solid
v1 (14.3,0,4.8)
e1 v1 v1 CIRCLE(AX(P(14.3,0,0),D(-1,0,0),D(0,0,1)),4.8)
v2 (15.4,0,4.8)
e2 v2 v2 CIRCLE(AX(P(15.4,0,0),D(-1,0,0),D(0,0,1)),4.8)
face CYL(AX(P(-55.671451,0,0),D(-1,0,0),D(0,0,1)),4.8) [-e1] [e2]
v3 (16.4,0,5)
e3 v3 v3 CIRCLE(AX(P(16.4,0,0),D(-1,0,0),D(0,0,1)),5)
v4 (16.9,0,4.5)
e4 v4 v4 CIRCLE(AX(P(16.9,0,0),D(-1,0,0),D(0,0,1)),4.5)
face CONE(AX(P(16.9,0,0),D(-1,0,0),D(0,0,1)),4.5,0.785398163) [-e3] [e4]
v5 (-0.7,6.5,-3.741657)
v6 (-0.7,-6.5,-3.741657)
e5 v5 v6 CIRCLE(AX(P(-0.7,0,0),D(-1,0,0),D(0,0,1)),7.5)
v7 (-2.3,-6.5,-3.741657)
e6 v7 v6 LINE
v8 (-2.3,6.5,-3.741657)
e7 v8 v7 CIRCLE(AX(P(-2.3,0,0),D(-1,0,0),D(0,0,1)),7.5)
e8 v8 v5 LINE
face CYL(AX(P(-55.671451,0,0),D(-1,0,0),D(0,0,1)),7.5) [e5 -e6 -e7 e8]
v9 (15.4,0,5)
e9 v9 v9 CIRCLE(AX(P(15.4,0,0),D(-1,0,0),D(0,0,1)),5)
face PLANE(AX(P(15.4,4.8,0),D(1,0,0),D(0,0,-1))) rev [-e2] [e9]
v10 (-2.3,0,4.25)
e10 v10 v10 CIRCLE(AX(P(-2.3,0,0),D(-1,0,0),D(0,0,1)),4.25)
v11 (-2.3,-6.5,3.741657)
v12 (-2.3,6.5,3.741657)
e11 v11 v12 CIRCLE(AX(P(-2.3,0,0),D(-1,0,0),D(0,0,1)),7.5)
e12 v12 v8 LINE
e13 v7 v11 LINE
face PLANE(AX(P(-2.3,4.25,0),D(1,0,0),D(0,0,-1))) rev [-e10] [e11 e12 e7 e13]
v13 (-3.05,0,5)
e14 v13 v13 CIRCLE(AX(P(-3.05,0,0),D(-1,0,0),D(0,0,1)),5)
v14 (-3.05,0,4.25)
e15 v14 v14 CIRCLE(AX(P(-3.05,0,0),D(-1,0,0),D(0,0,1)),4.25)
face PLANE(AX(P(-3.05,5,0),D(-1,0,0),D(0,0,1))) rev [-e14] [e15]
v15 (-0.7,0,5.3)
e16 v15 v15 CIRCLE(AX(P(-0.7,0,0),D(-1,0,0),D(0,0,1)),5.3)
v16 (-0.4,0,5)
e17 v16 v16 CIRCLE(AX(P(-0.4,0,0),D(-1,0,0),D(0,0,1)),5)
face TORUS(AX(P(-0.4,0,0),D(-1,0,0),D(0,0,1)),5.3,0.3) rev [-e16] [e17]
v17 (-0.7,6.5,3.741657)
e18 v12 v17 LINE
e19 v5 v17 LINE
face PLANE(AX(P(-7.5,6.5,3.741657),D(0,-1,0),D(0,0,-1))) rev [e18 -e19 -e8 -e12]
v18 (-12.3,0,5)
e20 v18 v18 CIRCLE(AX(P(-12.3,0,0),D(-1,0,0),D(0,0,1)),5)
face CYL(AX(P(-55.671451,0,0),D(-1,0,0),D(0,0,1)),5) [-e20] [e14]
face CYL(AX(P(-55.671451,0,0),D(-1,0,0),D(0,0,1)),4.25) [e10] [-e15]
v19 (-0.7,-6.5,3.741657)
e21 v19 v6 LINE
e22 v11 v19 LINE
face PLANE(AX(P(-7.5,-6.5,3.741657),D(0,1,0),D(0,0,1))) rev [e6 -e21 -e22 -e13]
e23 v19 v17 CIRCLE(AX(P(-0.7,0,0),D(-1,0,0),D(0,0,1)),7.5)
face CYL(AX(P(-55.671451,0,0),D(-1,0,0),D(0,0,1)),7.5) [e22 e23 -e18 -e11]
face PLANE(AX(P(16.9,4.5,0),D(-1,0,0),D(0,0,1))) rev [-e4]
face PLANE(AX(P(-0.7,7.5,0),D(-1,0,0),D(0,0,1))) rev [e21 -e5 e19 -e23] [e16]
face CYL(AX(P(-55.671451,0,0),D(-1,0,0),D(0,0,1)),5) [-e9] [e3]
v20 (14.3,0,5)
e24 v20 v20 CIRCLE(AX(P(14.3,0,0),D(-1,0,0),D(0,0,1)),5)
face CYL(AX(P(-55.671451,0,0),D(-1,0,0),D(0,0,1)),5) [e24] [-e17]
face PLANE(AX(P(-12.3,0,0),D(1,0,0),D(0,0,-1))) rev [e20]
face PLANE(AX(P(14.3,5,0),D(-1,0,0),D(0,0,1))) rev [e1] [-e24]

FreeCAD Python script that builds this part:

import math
import FreeCAD as App
import Part
import Sketcher
from FreeCAD import Vector
Q = App.Units.Quantity

doc = App.newDocument("Part")
body = doc.addObject("PartDesign::Body", "Body")

# Sketch on XY plane
sketch1 = body.newObject("Sketcher::SketchObject", "Sketch")
sketch1.AttachmentSupport = (doc.getObject("XY_Plane"), [""])
sketch1.MapMode = "FlatFace"
sketch1.addGeometry([
    Part.LineSegment(Vector(15.4, 4.8, 0), Vector(14.3, 4.8, 0)),  # 0
    Part.LineSegment(Vector(14.3, 4.8, 0), Vector(14.3, 5, 0)),  # 1
    Part.LineSegment(Vector(14.3, 5, 0), Vector(-0.4, 5, 0)),  # 2
    Part.ArcOfCircle(Part.Circle(Vector(-0.4, 5.3, 0), Vector(0, 0, 1), 0.3), math.radians(-180), math.radians(-90)),  # 3
    Part.LineSegment(Vector(-0.7, 5.3, 0), Vector(-0.7, 7.5, 0)),  # 4
    Part.LineSegment(Vector(-0.7, 7.5, 0), Vector(-2.3, 7.5, 0)),  # 5
    Part.LineSegment(Vector(-2.3, 7.5, 0), Vector(-2.3, 4.25, 0)),  # 6
    Part.LineSegment(Vector(-2.3, 4.25, 0), Vector(-3.05, 4.25, 0)),  # 7
    Part.LineSegment(Vector(-3.05, 4.25, 0), Vector(-3.05, 5, 0)),  # 8
    Part.LineSegment(Vector(-3.05, 5, 0), Vector(-12.3, 5, 0)),  # 9
    Part.LineSegment(Vector(-12.3, 5, 0), Vector(-12.3, 0, 0)),  # 10
    Part.LineSegment(Vector(-12.3, 0, 0), Vector(16.9, 0, 0)),  # 11
    Part.LineSegment(Vector(16.9, 0, 0), Vector(16.9, 4.5, 0)),  # 12
    Part.LineSegment(Vector(16.9, 4.5, 0), Vector(16.4, 5, 0)),  # 13
    Part.LineSegment(Vector(16.4, 5, 0), Vector(15.4, 5, 0)),  # 14
    Part.LineSegment(Vector(15.4, 5, 0), Vector(15.4, 4.8, 0)),  # 15
], False)
sketch1.addConstraint([
    Sketcher.Constraint("Coincident", 0, 2, 1, 1),
    Sketcher.Constraint("Coincident", 1, 2, 2, 1),
    Sketcher.Constraint("Tangent", 2, 2, 3, 2),
    Sketcher.Constraint("Tangent", 3, 1, 4, 1),
    Sketcher.Constraint("Coincident", 4, 2, 5, 1),
    Sketcher.Constraint("Coincident", 5, 2, 6, 1),
    Sketcher.Constraint("Coincident", 6, 2, 7, 1),
    Sketcher.Constraint("Coincident", 7, 2, 8, 1),
    Sketcher.Constraint("Coincident", 8, 2, 9, 1),
    Sketcher.Constraint("Coincident", 9, 2, 10, 1),
    Sketcher.Constraint("Coincident", 10, 2, 11, 1),
    Sketcher.Constraint("Coincident", 11, 2, 12, 1),
    Sketcher.Constraint("Coincident", 12, 2, 13, 1),
    Sketcher.Constraint("Coincident", 13, 2, 14, 1),
    Sketcher.Constraint("Coincident", 14, 2, 15, 1),
    Sketcher.Constraint("Coincident", 15, 2, 0, 1),
    Sketcher.Constraint("Horizontal", 0),
    Sketcher.Constraint("Vertical", 1),
    Sketcher.Constraint("Horizontal", 2),
    Sketcher.Constraint("Vertical", 4),
    Sketcher.Constraint("Horizontal", 5),
    Sketcher.Constraint("Vertical", 6),
    Sketcher.Constraint("Horizontal", 7),
    Sketcher.Constraint("Vertical", 8),
    Sketcher.Constraint("Horizontal", 9),
    Sketcher.Constraint("Vertical", 10),
    Sketcher.Constraint("Horizontal", 11),
    Sketcher.Constraint("Vertical", 12),
    Sketcher.Constraint("Horizontal", 14),
    Sketcher.Constraint("Vertical", 15),
    Sketcher.Constraint("PointOnObject", 10, 2, -1),
    Sketcher.Constraint("Horizontal", 2, 2, 8, 2),
    Sketcher.Constraint("Horizontal", 9, 2, 13, 2),
    Sketcher.Constraint("Equal", 7, 8),
    Sketcher.Constraint("Radius", 3, Q("0.3 mm")),
    Sketcher.Constraint("DistanceX", 14, 2, 14, 1, Q("1 mm")),
    Sketcher.Constraint("DistanceY", 10, 2, 10, 1, Q("5 mm")),
    Sketcher.Constraint("Angle", 13, Q("135 deg")),
    Sketcher.Constraint("DistanceX", 0, 2, 0, 1, Q("1.1 mm")),
    Sketcher.Constraint("DistanceX", 2, 2, 2, 1, Q("14.7 mm")),
    Sketcher.Constraint("DistanceX", 5, 2, 5, 1, Q("1.6 mm")),
    Sketcher.Constraint("DistanceX", 11, 1, 11, 2, Q("29.2 mm")),
    Sketcher.Constraint("DistanceY", 1, 1, 1, 2, Q("0.2 mm")),
    Sketcher.Constraint("DistanceY", 4, 1, 4, 2, Q("2.2 mm")),
    Sketcher.Constraint("DistanceY", 12, 1, 12, 2, Q("4.5 mm")),
    Sketcher.Constraint("DistanceX", 7, 2, 7, 1, Q("0.75 mm")),
    Sketcher.Constraint("DistanceX", 3, 3, -1, 1, Q("0.4 mm")),
])
revolution = body.newObject("PartDesign::Revolution", "Revolution")
revolution.Profile = sketch1
revolution.ReferenceAxis = (sketch1, ["H_Axis"])
revolution.Angle = 360

# Sketch on YZ plane
sketch2 = body.newObject("Sketcher::SketchObject", "Sketch001")
sketch2.AttachmentSupport = (doc.getObject("YZ_Plane"), [""])
sketch2.MapMode = "FlatFace"
sketch2.addGeometry([
    Part.LineSegment(Vector(6.5, 3.741657, 0), Vector(6.5, -3.741657, 0)),
    Part.ArcOfCircle(Part.Circle(Vector(0, 0, 0), Vector(0, 0, 1), 7.5), math.radians(-29.926435), math.radians(29.926435)),
    Part.LineSegment(Vector(-6.5, -3.741657, 0), Vector(-6.5, 3.741657, 0)),
    Part.ArcOfCircle(Part.Circle(Vector(0, 0, 0), Vector(0, 0, 1), 7.5), math.radians(150.073565), math.radians(209.926435)),
], False)
sketch2.addConstraint([
    Sketcher.Constraint("Coincident", 0, 1, 1, 2),
    Sketcher.Constraint("Coincident", 1, 1, 0, 2),
    Sketcher.Constraint("Coincident", 2, 1, 3, 2),
    Sketcher.Constraint("Coincident", 3, 1, 2, 2),
    Sketcher.Constraint("Vertical", 0),
    Sketcher.Constraint("Vertical", 2),
    Sketcher.Constraint("Coincident", 1, 3, -1, 1),
    Sketcher.Constraint("Coincident", 3, 3, -1, 1),
    Sketcher.Constraint("Equal", 1, 3),
    Sketcher.Constraint("Horizontal", 1, 1, 2, 1),
    Sketcher.Constraint("Radius", 1, Q("7.5 mm")),
    Sketcher.Constraint("DistanceX", 2, 1, 1, 1, Q("13 mm")),
])
pocket1 = body.newObject("PartDesign::Pocket", "Pocket")
pocket1.Profile = sketch2
pocket1.Length = 15
pocket1.Midplane = True

doc.recompute()
